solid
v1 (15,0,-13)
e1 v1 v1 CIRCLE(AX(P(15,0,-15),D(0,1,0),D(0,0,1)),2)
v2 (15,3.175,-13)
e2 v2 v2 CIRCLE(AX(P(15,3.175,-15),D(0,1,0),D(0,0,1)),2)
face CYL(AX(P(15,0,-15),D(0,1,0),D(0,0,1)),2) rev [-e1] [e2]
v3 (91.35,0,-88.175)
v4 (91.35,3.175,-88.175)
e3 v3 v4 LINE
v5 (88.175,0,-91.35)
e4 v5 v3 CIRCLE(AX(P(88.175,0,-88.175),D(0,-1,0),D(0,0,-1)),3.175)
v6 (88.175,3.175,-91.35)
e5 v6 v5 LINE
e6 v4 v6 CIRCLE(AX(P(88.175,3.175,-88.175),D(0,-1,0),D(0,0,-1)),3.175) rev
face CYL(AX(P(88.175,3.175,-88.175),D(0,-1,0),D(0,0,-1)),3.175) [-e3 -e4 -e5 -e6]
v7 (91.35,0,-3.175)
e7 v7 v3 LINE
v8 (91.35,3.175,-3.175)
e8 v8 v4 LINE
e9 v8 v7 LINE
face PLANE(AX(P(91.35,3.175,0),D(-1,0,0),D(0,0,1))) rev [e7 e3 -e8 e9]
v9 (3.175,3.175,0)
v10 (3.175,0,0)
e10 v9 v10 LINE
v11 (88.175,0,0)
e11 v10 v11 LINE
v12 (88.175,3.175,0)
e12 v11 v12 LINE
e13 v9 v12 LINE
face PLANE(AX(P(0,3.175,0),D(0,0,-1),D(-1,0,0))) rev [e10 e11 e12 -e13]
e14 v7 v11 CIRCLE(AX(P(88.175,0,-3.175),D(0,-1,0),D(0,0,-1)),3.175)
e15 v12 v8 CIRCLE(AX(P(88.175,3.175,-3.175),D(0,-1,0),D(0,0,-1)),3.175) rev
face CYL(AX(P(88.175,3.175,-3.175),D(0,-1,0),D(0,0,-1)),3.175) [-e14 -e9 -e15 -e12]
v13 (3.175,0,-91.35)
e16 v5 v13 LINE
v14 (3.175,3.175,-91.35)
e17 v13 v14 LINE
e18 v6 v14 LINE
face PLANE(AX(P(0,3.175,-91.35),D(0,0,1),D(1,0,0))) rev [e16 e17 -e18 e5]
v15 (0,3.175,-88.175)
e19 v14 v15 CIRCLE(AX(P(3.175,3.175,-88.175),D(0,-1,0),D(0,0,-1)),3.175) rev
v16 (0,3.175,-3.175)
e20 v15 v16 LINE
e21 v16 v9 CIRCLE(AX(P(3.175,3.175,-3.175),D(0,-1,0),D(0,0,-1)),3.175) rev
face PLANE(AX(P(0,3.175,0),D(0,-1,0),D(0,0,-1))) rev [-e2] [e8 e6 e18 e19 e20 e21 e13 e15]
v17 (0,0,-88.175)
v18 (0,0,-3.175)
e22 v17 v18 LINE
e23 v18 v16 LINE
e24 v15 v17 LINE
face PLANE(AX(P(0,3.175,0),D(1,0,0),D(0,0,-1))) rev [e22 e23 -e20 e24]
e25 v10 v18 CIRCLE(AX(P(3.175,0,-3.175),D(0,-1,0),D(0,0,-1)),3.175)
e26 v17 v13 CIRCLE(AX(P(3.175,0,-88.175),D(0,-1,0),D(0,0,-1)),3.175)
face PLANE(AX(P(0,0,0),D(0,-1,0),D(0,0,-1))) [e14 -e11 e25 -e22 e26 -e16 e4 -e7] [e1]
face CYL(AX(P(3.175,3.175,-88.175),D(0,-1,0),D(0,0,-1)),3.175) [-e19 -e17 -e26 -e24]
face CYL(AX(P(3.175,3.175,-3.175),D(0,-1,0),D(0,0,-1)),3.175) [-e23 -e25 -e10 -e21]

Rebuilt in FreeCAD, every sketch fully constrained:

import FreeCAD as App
import Part
import Sketcher
from FreeCAD import Vector
Q = App.Units.Quantity


def edges_at(feature, points):
    """Names of the edges that pass closest to the given points."""
    edges = feature.Shape.Edges
    near = lambda p: min(range(len(edges)), key=lambda i: edges[i].distToShape(Part.Vertex(*p))[0])
    return sorted({f"Edge{near(p) + 1}" for p in points})


def add_polygon(sketch, points):
    """Adds a closed chain of lines whose ends are joined by coincident constraints."""
    first, n = sketch.GeometryCount, len(points)
    for a, b in zip(points, points[1:] + points[:1]):
        sketch.addGeometry(Part.LineSegment(App.Vector(*a, 0), App.Vector(*b, 0)), False)
    for i in range(n):
        sketch.addConstraint(Sketcher.Constraint("Coincident", first + i, 2, first + (i + 1) % n, 1))

doc = App.newDocument("Part")
body = doc.addObject("PartDesign::Body", "Body")

sketch1 = body.newObject("Sketcher::SketchObject", "Sketch")
sketch1.AttachmentSupport = (doc.getObject("XZ_Plane"), [""])
sketch1.MapMode = "FlatFace"
add_polygon(sketch1, [(0, -91.35), (0, 0), (91.35, 0), (91.35, -91.35)])
sketch1.addConstraint([
    Sketcher.Constraint("Vertical", 0),
    Sketcher.Constraint("Horizontal", 1),
    Sketcher.Constraint("Vertical", 2),
    Sketcher.Constraint("Horizontal", 3),
    Sketcher.Constraint("Coincident", 0, 2, -1, 1),
    Sketcher.Constraint("Equal", 3, 0),
    Sketcher.Constraint("DistanceX", 1, 1, 1, 2, Q("91.35 mm")),
])
pad1 = body.newObject("PartDesign::Pad", "Pad")
pad1.Profile = sketch1
pad1.Length = 3.175
pad1.Reversed = True

sketch2 = body.newObject("Sketcher::SketchObject", "Sketch001")
sketch2.AttachmentSupport = (doc.getObject("XZ_Plane"), [""])
sketch2.MapMode = "FlatFace"
sketch2.AttachmentOffset = App.Placement(Vector(0, 0, -3.175), App.Rotation())
sketch2.addGeometry(Part.Circle(Vector(15, -15, 0), Vector(0, 0, 1), 2), False)
sketch2.addConstraint([
    Sketcher.Constraint("Diameter", 0, Q("4 mm")),
    Sketcher.Constraint("DistanceX", -1, 1, 0, 3, Q("15 mm")),
    Sketcher.Constraint("DistanceY", 0, 3, -1, 1, Q("15 mm")),
])
pocket1 = body.newObject("PartDesign::Pocket", "Pocket")
pocket1.Profile = sketch2
pocket1.Type = "ThroughAll"
pocket1.Reversed = True
doc.recompute()

fillet = body.newObject("PartDesign::Fillet", "Fillet")
fillet.Base = (pocket1, edges_at(pocket1, [
    (0, 1.587, -91.35),
    (91.35, 1.587, -91.35),
    (91.35, 1.587, 0),
    (0, 1.587, 0),
]))
fillet.Radius = 3.175

doc.recompute()
